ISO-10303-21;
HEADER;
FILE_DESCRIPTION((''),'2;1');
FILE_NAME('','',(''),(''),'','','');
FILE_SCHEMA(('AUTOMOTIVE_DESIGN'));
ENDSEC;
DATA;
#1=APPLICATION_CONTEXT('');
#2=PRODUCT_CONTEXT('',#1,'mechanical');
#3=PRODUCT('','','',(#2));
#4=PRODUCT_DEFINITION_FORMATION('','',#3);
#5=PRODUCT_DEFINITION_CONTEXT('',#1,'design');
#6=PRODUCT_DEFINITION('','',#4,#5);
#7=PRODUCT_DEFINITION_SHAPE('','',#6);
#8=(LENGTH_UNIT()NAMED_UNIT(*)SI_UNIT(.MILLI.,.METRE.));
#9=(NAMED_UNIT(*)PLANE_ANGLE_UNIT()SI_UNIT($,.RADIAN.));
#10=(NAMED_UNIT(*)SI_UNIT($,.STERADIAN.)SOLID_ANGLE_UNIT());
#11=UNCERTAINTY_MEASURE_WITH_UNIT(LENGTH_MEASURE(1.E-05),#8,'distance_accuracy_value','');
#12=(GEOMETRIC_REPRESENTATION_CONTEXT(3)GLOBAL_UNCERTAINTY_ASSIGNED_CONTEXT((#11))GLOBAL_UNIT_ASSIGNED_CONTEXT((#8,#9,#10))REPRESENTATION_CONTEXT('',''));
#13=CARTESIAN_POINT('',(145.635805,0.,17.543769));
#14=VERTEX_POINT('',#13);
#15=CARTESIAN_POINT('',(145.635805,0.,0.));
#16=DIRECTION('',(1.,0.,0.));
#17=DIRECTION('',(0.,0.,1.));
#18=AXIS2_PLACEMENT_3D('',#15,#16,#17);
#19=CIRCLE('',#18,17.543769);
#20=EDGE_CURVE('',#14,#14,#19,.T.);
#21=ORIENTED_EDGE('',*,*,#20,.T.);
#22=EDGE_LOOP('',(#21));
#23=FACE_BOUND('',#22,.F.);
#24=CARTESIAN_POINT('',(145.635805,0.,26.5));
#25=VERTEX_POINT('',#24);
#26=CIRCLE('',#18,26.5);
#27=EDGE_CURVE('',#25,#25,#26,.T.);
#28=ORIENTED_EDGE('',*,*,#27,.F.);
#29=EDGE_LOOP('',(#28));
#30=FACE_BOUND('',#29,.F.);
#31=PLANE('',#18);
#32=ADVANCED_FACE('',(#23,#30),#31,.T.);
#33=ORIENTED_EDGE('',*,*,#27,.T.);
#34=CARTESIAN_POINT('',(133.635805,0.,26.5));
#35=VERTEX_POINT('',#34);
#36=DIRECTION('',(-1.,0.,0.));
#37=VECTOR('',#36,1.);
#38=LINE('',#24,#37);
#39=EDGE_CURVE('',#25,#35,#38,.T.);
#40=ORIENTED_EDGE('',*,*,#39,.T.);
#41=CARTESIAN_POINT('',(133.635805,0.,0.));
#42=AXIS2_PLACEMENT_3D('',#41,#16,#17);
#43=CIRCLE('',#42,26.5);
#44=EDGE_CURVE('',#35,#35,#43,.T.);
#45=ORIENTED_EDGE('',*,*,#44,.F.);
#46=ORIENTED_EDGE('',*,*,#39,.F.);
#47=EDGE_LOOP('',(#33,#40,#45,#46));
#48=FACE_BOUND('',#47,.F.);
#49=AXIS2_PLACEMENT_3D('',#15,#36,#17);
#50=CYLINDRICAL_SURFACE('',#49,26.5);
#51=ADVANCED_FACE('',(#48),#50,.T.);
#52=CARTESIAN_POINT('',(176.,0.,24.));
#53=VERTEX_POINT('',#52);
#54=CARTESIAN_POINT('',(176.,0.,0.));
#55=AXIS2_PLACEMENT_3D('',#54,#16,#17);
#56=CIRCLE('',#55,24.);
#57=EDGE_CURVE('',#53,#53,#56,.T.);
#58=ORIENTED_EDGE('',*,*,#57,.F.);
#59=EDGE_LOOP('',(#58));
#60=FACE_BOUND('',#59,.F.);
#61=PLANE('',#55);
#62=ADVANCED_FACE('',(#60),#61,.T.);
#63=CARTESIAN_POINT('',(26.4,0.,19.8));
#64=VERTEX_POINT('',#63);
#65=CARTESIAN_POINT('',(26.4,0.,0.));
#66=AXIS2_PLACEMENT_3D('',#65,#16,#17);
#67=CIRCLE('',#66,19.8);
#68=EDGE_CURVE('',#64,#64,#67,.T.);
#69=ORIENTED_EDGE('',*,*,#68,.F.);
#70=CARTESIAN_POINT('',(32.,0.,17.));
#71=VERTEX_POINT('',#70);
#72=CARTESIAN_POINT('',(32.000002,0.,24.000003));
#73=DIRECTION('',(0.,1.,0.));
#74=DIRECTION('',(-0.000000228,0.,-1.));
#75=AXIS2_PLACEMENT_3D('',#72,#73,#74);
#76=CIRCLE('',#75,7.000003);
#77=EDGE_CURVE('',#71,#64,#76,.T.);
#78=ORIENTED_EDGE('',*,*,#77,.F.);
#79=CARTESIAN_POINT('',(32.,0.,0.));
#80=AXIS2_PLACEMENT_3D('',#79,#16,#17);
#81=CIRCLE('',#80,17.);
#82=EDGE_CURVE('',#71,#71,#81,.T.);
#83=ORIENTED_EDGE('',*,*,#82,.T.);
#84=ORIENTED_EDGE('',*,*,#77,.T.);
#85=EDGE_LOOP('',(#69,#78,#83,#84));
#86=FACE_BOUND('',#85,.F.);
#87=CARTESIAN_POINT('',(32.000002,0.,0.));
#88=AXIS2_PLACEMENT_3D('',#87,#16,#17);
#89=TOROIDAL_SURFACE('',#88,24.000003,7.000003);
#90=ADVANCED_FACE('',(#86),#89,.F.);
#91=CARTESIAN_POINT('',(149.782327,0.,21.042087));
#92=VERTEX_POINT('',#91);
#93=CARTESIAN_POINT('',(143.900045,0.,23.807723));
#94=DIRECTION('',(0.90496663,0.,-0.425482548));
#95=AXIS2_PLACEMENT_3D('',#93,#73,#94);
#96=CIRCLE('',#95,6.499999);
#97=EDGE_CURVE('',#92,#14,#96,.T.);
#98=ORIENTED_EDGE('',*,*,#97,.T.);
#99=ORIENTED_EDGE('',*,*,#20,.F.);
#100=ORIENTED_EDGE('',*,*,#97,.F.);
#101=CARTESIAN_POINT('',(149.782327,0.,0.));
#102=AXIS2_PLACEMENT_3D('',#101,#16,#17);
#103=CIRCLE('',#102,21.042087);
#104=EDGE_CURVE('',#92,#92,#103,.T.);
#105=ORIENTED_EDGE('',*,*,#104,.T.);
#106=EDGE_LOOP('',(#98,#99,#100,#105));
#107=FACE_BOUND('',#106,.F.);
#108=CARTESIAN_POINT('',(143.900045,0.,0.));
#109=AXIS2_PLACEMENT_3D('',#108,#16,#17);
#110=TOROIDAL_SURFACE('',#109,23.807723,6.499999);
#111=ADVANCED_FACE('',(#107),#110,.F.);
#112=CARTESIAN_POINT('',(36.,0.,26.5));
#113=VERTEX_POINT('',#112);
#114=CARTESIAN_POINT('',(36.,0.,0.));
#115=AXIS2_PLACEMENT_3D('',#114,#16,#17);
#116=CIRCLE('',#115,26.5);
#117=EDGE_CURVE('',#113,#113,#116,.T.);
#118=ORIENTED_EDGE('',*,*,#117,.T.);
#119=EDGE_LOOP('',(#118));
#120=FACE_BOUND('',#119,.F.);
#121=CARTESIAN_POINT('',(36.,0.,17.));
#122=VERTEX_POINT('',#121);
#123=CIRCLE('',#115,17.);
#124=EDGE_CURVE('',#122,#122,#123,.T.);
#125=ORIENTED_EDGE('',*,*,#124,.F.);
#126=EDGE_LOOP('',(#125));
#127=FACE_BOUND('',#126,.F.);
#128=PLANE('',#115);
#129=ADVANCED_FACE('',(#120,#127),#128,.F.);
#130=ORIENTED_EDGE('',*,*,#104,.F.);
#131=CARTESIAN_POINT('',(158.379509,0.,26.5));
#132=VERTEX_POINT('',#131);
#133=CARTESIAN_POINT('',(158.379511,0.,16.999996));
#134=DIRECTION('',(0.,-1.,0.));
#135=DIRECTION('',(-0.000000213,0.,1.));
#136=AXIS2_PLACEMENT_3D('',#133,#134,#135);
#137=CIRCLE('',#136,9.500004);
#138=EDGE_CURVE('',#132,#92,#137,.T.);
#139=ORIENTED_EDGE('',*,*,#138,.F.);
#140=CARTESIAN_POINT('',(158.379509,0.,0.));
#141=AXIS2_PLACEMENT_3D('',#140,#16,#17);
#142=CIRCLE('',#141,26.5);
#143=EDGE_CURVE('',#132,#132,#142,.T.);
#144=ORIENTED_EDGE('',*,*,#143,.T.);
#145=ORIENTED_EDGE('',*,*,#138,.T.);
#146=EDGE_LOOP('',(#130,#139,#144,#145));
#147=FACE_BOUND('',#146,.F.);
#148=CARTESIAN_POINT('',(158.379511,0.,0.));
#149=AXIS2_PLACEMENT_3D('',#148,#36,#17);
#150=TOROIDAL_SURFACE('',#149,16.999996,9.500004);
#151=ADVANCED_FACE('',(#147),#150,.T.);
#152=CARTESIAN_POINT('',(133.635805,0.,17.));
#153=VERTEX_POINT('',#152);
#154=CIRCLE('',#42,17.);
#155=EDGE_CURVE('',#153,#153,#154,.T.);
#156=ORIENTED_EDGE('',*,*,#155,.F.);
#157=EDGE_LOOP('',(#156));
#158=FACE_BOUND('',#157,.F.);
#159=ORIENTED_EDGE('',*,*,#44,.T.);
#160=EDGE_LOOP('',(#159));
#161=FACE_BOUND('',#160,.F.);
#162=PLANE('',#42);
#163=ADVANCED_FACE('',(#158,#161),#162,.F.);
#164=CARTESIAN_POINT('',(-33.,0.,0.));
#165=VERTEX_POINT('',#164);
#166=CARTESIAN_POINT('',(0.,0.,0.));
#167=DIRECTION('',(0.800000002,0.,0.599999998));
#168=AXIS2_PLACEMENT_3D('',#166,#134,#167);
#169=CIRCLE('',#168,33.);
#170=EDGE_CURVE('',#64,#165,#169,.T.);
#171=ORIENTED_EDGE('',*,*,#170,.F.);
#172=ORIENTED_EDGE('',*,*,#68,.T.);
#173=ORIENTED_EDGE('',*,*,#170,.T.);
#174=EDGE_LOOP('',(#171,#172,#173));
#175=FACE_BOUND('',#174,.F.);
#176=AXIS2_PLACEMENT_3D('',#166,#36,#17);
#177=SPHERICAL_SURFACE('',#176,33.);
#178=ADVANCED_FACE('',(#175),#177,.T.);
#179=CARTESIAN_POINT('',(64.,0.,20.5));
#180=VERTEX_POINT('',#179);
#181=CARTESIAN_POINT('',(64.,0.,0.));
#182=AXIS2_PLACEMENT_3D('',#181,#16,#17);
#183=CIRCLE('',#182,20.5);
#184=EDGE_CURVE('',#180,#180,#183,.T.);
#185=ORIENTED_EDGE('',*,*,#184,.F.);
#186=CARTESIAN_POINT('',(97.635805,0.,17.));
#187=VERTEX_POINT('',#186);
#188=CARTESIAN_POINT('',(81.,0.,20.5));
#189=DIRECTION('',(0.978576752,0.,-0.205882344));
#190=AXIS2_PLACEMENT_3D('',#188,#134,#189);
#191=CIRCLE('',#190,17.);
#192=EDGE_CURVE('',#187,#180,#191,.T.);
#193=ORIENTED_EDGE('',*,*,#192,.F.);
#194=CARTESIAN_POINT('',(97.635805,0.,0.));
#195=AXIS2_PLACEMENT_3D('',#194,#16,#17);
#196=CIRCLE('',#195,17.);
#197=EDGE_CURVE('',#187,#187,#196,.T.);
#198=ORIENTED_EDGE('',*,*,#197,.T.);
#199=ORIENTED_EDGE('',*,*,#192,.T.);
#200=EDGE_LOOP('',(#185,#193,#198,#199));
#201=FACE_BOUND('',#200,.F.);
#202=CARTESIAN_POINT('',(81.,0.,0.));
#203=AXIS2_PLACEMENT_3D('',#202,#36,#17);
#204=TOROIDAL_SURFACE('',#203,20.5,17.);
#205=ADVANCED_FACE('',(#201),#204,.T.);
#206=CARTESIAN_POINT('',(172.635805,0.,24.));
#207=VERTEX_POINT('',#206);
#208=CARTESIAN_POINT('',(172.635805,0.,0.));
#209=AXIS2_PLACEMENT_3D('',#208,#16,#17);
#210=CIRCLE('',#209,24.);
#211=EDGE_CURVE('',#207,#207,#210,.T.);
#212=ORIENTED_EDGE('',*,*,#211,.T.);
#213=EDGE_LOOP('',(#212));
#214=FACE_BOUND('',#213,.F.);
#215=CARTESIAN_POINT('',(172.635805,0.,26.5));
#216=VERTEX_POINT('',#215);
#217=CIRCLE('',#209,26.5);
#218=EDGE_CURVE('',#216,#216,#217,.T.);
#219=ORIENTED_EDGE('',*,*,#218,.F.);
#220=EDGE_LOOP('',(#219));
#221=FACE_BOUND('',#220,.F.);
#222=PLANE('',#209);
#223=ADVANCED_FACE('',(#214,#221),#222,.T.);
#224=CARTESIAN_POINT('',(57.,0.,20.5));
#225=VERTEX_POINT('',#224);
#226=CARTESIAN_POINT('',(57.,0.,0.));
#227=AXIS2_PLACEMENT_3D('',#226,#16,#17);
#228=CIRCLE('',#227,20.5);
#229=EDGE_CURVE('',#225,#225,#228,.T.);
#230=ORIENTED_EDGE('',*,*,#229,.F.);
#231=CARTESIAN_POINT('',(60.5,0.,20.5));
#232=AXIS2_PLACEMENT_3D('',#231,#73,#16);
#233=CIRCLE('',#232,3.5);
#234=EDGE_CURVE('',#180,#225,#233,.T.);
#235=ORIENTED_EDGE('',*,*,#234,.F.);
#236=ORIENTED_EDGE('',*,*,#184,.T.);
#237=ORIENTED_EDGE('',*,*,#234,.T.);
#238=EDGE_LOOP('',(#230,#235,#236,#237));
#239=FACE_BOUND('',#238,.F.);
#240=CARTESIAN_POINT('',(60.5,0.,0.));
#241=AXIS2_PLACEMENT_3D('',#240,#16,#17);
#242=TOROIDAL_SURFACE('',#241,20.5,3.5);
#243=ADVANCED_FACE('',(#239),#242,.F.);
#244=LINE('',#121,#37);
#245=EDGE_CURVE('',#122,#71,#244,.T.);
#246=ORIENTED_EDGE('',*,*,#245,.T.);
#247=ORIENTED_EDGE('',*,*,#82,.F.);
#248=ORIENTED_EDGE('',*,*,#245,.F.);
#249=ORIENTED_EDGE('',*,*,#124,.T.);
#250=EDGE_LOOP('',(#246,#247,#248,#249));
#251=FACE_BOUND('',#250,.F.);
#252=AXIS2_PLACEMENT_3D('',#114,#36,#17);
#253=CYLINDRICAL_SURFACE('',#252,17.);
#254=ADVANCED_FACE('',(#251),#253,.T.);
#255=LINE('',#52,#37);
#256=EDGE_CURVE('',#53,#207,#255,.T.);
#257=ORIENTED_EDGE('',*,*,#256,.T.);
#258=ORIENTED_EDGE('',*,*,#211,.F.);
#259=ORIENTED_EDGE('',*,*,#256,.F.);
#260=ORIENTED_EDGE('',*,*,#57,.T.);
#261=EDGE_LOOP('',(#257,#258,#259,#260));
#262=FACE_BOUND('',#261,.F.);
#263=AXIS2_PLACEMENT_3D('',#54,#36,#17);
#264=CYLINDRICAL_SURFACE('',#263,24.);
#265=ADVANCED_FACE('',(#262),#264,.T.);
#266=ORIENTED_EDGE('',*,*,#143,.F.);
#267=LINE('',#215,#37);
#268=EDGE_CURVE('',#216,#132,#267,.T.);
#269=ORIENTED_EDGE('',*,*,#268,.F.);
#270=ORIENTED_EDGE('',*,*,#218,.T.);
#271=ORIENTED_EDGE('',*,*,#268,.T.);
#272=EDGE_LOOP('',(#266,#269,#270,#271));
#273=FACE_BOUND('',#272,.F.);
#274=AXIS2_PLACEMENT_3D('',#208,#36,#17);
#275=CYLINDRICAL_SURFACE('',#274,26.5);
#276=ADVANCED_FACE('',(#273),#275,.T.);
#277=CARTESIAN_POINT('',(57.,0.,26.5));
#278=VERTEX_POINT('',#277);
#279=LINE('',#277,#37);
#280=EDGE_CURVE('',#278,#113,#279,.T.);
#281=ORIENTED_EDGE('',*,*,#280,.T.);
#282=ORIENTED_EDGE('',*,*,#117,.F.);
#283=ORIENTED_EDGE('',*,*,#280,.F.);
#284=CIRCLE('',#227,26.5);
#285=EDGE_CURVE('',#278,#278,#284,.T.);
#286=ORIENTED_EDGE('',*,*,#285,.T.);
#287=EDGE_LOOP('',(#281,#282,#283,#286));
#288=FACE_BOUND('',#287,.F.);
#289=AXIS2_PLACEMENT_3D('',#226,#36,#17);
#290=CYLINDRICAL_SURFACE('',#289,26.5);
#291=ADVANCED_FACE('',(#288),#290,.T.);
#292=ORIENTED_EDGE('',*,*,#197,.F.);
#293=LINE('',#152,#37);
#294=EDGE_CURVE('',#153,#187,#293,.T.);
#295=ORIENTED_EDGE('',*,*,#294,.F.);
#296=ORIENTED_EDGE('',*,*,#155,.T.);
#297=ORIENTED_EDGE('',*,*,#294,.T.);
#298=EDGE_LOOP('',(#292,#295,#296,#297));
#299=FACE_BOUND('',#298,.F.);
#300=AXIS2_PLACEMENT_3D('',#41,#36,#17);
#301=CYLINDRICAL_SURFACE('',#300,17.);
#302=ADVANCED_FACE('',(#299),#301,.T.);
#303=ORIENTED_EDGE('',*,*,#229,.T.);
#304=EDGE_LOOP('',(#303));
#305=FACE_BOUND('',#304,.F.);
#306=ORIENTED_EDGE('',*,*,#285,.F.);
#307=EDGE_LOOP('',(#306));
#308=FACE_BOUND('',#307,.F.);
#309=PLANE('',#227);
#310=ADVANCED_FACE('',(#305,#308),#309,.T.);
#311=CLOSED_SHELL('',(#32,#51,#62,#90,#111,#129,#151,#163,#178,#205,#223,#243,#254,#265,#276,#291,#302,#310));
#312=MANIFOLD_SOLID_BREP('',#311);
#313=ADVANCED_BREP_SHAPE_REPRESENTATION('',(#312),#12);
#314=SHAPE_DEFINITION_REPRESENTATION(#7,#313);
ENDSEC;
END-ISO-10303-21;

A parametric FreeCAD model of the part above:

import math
import FreeCAD as App
import Part
import Sketcher
Q = App.Units.Quantity

doc = App.newDocument("Part")
body = doc.addObject("PartDesign::Body", "Body")

# Sketch on XZ plane
sketch1 = body.newObject("Sketcher::SketchObject", "Sketch")
sketch1.AttachmentSupport = (doc.getObject("XZ_Plane"), [""])
sketch1.MapMode = "FlatFace"
sketch1.addGeometry([
    Part.LineSegment(App.Vector(-33, 0, 0), App.Vector(176, 0, 0)),  # 0
    Part.LineSegment(App.Vector(176, 0, 0), App.Vector(176, 24, 0)),  # 1
    Part.LineSegment(App.Vector(176, 24, 0), App.Vector(172.6, 24, 0)),  # 2
    Part.LineSegment(App.Vector(172.6, 24, 0), App.Vector(172.6, 26.5, 0)),  # 3
    Part.LineSegment(App.Vector(172.6, 26.5, 0), App.Vector(158.4, 26.5, 0)),  # 4
    Part.ArcOfCircle(Part.Circle(App.Vector(158.4, 17, 0), App.Vector(0, 0, 1), 9.5), math.radians(90), math.radians(155)),  # 5
    Part.ArcOfCircle(Part.Circle(App.Vector(143.9, 23.8, 0), App.Vector(0, 0, 1), 6.5), math.radians(-75), math.radians(-25)),  # 6
    Part.LineSegment(App.Vector(145.6, 17.5, 0), App.Vector(145.6, 26.5, 0)),  # 7
    Part.LineSegment(App.Vector(145.6, 26.5, 0), App.Vector(133.6, 26.5, 0)),  # 8
    Part.LineSegment(App.Vector(133.6, 26.5, 0), App.Vector(133.6, 17, 0)),  # 9
    Part.LineSegment(App.Vector(133.6, 17, 0), App.Vector(97.6, 17, 0)),  # 10
    Part.ArcOfCircle(Part.Circle(App.Vector(81, 20.5, 0), App.Vector(0, 0, 1), 17), math.radians(-12), math.radians(180)),  # 11
    Part.ArcOfCircle(Part.Circle(App.Vector(60.5, 20.5, 0), App.Vector(0, 0, 1), 3.5), math.radians(180), math.radians(360)),  # 12
    Part.LineSegment(App.Vector(57, 20.5, 0), App.Vector(57, 26.5, 0)),  # 13
    Part.LineSegment(App.Vector(57, 26.5, 0), App.Vector(36, 26.5, 0)),  # 14
    Part.LineSegment(App.Vector(36, 26.5, 0), App.Vector(36, 17, 0)),  # 15
    Part.LineSegment(App.Vector(36, 17, 0), App.Vector(32, 17, 0)),  # 16
    Part.ArcOfCircle(Part.Circle(App.Vector(32, 24, 0), App.Vector(0, 0, 1), 7), math.radians(-143), math.radians(-90)),  # 17
    Part.ArcOfCircle(Part.Circle(App.Vector(0, 0, 0), App.Vector(0, 0, 1), 33), math.radians(37), math.radians(180)),  # 18
], False)
sketch1.addConstraint([
    Sketcher.Constraint("Coincident", 0, 2, 1, 1),
    Sketcher.Constraint("Coincident", 1, 2, 2, 1),
    Sketcher.Constraint("Coincident", 2, 2, 3, 1),
    Sketcher.Constraint("Coincident", 3, 2, 4, 1),
    Sketcher.Constraint("Tangent", 4, 2, 5, 1),
    Sketcher.Constraint("Tangent", 5, 2, 6, 2),
    Sketcher.Constraint("Coincident", 6, 1, 7, 1),
    Sketcher.Constraint("Coincident", 7, 2, 8, 1),
    Sketcher.Constraint("Coincident", 8, 2, 9, 1),
    Sketcher.Constraint("Coincident", 9, 2, 10, 1),
    Sketcher.Constraint("Coincident", 10, 2, 11, 1),
    Sketcher.Constraint("Tangent", 11, 2, 12, 2),
    Sketcher.Constraint("Tangent", 12, 1, 13, 1),
    Sketcher.Constraint("Coincident", 13, 2, 14, 1),
    Sketcher.Constraint("Coincident", 14, 2, 15, 1),
    Sketcher.Constraint("Coincident", 15, 2, 16, 1),
    Sketcher.Constraint("Tangent", 16, 2, 17, 2),
    Sketcher.Constraint("Tangent", 17, 1, 18, 1),
    Sketcher.Constraint("Coincident", 18, 2, 0, 1),
    Sketcher.Constraint("Horizontal", 0),
    Sketcher.Constraint("Vertical", 1),
    Sketcher.Constraint("Horizontal", 2),
    Sketcher.Constraint("Vertical", 3),
    Sketcher.Constraint("Horizontal", 4),
    Sketcher.Constraint("Vertical", 7),
    Sketcher.Constraint("Horizontal", 8),
    Sketcher.Constraint("Vertical", 9),
    Sketcher.Constraint("Horizontal", 10),
    Sketcher.Constraint("Vertical", 13),
    Sketcher.Constraint("Horizontal", 14),
    Sketcher.Constraint("Vertical", 15),
    Sketcher.Constraint("Horizontal", 16),
    Sketcher.Constraint("Coincident", 18, 3, -1, 1),
    Sketcher.Constraint("PointOnObject", 0, 2, -1),
    Sketcher.Constraint("Horizontal", 11, 3, 12, 3),
    Sketcher.Constraint("Horizontal", 4, 2, 7, 2),
    Sketcher.Constraint("Horizontal", 8, 2, 13, 2),
    Sketcher.Constraint("Horizontal", 10, 2, 15, 2),
    Sketcher.Constraint("Radius", 11, Q("17 mm")),
    Sketcher.Constraint("Radius", 18, Q("33 mm")),
    Sketcher.Constraint("Radius", 6, Q("6.499999 mm")),
    Sketcher.Constraint("Radius", 12, Q("3.5 mm")),
    Sketcher.Constraint("DistanceX", 0, 1, 0, 2, Q("209 mm")),
    Sketcher.Constraint("DistanceX", 8, 2, 8, 1, Q("12 mm")),
    Sketcher.Constraint("DistanceX", 10, 2, 10, 1, Q("36 mm")),
    Sketcher.Constraint("DistanceX", 14, 2, 14, 1, Q("21 mm")),
    Sketcher.Constraint("DistanceX", 16, 2, 16, 1, Q("4 mm")),
    Sketcher.Constraint("DistanceY", 1, 1, 1, 2, Q("24 mm")),
    Sketcher.Constraint("DistanceY", 13, 1, 13, 2, Q("6 mm")),
    Sketcher.Constraint("DistanceY", 3, 1, 3, 2, Q("2.5 mm")),
    Sketcher.Constraint("DistanceY", 9, 2, 9, 1, Q("9.5 mm")),
    Sketcher.Constraint("DistanceX", -1, 1, 11, 3, Q("81 mm")),
    Sketcher.Constraint("DistanceX", 6, 1, 2, 2, Q("27 mm")),
    Sketcher.Constraint("Radius", 5, Q("9.500004 mm")),
    Sketcher.Constraint("DistanceY", 7, 1, 7, 2, Q("8.956231 mm")),
    Sketcher.Constraint("DistanceX", 4, 2, 4, 1, Q("14.256296 mm")),
])
revolution = body.newObject("PartDesign::Revolution", "Revolution")
revolution.Profile = sketch1
revolution.ReferenceAxis = (sketch1, ["H_Axis"])
revolution.Angle = 360

doc.recompute()
